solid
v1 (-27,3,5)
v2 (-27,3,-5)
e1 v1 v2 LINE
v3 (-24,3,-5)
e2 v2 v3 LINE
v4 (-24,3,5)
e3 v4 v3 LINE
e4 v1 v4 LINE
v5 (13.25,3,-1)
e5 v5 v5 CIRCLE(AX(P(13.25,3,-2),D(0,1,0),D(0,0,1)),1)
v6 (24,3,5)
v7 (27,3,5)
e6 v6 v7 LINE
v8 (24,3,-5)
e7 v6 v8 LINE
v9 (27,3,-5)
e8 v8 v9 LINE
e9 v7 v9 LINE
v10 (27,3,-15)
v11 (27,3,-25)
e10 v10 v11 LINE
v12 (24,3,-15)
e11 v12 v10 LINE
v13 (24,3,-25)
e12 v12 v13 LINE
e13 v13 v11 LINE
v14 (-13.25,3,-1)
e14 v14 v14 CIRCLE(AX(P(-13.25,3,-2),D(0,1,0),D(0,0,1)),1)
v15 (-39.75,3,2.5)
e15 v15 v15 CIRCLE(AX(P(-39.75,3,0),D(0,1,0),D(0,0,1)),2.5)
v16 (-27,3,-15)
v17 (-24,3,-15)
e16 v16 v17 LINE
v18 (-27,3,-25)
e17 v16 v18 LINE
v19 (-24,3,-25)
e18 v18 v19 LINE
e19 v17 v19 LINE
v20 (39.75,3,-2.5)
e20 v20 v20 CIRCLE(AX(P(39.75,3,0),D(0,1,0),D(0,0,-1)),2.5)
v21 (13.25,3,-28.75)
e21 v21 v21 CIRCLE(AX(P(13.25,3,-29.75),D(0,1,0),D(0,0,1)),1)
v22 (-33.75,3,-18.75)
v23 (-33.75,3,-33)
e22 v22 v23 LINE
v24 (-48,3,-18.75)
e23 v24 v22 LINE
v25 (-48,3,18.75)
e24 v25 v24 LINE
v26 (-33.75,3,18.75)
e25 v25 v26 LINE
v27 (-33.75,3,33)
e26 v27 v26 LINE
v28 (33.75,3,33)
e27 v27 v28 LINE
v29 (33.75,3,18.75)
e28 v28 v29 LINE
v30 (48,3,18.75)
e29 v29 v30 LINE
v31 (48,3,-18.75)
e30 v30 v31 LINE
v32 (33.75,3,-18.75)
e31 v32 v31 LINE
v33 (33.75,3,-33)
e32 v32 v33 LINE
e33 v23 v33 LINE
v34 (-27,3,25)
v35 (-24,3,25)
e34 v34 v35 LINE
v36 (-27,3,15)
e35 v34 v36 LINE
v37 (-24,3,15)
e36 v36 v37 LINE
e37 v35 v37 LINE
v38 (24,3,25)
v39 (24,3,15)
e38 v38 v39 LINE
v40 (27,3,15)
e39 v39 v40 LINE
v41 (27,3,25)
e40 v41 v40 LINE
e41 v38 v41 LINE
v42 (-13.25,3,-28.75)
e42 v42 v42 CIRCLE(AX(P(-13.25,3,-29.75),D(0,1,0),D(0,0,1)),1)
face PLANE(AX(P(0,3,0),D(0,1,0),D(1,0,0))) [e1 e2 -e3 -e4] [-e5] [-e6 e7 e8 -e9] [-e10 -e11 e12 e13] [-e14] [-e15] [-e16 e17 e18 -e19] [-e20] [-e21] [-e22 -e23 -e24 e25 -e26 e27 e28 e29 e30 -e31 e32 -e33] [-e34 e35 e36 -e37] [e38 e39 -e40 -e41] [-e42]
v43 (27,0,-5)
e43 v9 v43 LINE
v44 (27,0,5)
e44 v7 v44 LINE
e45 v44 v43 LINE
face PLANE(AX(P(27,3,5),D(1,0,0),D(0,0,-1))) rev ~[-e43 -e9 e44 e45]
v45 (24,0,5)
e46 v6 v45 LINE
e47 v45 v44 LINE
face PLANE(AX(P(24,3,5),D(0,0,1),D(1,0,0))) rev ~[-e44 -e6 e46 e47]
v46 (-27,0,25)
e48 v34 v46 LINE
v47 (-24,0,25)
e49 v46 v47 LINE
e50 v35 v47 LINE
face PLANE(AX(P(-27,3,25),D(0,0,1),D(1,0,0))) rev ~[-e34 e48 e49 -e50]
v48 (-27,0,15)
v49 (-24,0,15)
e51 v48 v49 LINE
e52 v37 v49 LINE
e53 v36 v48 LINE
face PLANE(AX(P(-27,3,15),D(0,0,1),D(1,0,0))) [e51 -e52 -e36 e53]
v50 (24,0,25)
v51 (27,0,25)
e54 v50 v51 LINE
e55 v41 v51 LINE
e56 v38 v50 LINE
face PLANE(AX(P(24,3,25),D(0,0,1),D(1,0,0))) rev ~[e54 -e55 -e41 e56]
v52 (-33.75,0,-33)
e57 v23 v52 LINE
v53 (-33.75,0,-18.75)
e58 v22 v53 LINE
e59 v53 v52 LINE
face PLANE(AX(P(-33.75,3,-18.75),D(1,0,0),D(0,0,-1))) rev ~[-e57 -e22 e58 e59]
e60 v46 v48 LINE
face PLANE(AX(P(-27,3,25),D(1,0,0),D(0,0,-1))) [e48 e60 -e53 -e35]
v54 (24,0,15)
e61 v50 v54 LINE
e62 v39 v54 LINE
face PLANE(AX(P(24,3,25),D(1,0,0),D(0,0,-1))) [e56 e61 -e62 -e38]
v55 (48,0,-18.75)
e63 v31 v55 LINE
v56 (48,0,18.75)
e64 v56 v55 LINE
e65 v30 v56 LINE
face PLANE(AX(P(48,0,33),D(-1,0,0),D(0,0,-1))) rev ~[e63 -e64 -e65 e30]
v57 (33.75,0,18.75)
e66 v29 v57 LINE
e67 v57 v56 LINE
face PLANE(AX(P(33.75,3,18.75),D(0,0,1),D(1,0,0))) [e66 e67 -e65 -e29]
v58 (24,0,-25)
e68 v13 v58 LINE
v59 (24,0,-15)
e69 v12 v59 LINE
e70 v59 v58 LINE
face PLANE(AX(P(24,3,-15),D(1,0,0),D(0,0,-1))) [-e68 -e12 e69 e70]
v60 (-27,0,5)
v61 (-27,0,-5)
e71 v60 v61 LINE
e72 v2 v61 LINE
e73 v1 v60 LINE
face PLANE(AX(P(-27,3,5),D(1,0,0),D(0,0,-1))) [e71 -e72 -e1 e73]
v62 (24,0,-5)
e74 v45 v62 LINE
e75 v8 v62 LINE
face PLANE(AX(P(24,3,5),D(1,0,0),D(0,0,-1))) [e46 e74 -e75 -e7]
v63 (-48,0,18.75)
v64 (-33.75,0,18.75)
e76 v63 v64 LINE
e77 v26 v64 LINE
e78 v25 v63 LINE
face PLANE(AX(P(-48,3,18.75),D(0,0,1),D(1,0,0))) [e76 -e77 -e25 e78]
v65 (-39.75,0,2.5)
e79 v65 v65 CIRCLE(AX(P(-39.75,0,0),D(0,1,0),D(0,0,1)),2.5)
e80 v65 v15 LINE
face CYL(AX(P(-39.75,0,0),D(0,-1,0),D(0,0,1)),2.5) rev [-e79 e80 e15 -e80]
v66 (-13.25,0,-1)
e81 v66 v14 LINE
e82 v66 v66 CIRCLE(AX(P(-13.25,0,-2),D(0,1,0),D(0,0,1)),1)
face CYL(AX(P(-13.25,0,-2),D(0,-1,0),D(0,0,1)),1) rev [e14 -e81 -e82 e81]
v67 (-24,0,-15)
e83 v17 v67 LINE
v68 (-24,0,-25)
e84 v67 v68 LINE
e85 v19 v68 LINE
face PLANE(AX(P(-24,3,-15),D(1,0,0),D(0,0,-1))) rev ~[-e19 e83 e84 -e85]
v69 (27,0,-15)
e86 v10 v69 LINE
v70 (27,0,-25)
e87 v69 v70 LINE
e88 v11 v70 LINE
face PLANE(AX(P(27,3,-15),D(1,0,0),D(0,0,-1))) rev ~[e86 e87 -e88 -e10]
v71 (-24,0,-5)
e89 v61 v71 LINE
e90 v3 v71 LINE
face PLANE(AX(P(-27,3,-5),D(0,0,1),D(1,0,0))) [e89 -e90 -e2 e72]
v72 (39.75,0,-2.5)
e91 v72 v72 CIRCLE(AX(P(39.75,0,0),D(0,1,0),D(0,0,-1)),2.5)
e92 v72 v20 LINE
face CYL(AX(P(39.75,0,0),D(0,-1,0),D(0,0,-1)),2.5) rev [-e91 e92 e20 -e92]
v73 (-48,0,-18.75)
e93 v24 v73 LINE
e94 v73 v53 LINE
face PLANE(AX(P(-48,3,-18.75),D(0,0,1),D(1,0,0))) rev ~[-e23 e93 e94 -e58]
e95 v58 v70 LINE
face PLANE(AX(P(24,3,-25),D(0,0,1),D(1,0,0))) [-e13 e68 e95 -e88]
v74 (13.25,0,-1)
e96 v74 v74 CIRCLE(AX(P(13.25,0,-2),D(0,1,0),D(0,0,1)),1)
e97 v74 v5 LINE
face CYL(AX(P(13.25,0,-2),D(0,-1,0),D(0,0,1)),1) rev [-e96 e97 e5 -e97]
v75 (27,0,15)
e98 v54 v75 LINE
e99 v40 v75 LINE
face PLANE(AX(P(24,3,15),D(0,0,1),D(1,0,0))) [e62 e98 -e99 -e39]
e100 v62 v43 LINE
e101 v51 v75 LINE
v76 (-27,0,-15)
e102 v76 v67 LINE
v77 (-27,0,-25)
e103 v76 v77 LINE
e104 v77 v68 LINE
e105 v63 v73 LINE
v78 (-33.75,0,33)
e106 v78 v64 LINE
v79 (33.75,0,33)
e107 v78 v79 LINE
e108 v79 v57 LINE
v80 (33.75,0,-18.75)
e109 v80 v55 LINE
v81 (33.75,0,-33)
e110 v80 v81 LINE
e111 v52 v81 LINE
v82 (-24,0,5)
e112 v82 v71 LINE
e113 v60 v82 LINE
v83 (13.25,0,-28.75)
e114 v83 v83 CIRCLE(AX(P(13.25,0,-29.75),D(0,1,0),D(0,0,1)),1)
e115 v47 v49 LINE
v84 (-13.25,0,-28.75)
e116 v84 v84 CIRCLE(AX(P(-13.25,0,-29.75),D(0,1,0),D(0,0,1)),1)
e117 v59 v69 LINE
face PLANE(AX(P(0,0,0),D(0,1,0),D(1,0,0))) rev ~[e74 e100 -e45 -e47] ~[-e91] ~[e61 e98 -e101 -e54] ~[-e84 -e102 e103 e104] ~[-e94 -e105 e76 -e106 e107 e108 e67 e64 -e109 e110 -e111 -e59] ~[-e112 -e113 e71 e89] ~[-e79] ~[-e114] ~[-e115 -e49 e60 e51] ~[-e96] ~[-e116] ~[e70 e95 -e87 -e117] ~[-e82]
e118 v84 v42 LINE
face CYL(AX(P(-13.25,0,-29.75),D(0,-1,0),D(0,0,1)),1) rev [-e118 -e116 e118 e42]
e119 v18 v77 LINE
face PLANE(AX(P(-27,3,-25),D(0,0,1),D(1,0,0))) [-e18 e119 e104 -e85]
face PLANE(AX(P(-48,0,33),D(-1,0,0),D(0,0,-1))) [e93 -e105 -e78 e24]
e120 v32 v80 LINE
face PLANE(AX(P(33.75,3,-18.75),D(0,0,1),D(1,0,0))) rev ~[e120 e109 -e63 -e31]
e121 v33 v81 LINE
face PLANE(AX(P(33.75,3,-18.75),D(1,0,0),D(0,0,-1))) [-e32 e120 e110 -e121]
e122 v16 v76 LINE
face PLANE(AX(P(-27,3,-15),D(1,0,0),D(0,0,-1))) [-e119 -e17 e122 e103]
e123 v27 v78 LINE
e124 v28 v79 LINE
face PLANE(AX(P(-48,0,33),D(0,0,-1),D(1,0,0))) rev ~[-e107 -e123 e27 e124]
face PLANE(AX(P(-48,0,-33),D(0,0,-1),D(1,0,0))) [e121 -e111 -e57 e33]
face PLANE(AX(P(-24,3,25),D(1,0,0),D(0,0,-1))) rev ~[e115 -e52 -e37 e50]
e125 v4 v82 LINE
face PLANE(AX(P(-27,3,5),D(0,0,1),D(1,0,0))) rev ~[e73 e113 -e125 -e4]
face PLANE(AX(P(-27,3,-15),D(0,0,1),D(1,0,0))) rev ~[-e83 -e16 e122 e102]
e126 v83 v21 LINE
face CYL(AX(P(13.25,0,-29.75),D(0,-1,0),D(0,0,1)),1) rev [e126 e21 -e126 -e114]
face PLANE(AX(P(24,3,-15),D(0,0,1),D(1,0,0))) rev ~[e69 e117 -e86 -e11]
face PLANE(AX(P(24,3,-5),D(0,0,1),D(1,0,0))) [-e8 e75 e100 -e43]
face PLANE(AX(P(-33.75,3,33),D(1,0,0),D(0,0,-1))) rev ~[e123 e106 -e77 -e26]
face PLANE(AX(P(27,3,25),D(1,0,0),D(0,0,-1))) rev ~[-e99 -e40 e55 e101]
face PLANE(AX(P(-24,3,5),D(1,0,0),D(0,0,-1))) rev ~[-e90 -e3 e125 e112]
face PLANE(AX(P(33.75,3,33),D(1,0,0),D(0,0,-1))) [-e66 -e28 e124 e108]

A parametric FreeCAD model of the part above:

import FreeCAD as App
import Part
import Sketcher

V = App.Vector
Q = App.Units.Quantity


def add_polygon(sketch, points):
    """Adds a closed chain of lines whose ends are joined by coincident constraints."""
    first, n = sketch.GeometryCount, len(points)
    for a, b in zip(points, points[1:] + points[:1]):
        sketch.addGeometry(Part.LineSegment(App.Vector(*a, 0), App.Vector(*b, 0)), False)
    for i in range(n):
        sketch.addConstraint(Sketcher.Constraint("Coincident", first + i, 2, first + (i + 1) % n, 1))

doc = App.newDocument("Part")
body = doc.addObject("PartDesign::Body", "Body")

sketch1 = body.newObject("Sketcher::SketchObject", "Sketch")
sketch1.AttachmentSupport = (doc.getObject("XZ_Plane"), [""])
sketch1.MapMode = "FlatFace"
add_polygon(sketch1, [(-48, -33), (-48, 33), (48, 33), (48, -33)])
sketch1.addGeometry(Part.Circle(V(-39.8, 0, 0), V(0, 0, 1), 2.5), False)
sketch1.addGeometry(Part.Circle(V(-13.2, -2, 0), V(0, 0, 1), 1), False)
sketch1.addGeometry(Part.Circle(V(13.2, -2, 0), V(0, 0, 1), 1), False)
sketch1.addGeometry(Part.Circle(V(39.8, 0, 0), V(0, 0, 1), 2.5), False)
sketch1.addGeometry(Part.Circle(V(-13.2, -29.8, 0), V(0, 0, 1), 1), False)
sketch1.addGeometry(Part.Circle(V(13.2, -29.8, 0), V(0, 0, 1), 1), False)
sketch1.addConstraint(Sketcher.Constraint("Vertical", 0))
sketch1.addConstraint(Sketcher.Constraint("Horizontal", 1))
sketch1.addConstraint(Sketcher.Constraint("Vertical", 2))
sketch1.addConstraint(Sketcher.Constraint("Horizontal", 3))
sketch1.addConstraint(Sketcher.Constraint("Equal", 5, 6))
sketch1.addConstraint(Sketcher.Constraint("Equal", 4, 7))
sketch1.addConstraint(Sketcher.Constraint("Equal", 6, 8))
sketch1.addConstraint(Sketcher.Constraint("Equal", 8, 9))
sketch1.addConstraint(Sketcher.Constraint("Symmetric", 4, 3, 7, 3, -1, 1))
sketch1.addConstraint(Sketcher.Constraint("Symmetric", 0, 2, 2, 2, -1, 1))
sketch1.addConstraint(Sketcher.Constraint("Symmetric", 5, 3, 6, 3, -2))
sketch1.addConstraint(Sketcher.Constraint("Symmetric", 8, 3, 9, 3, -2))
sketch1.addConstraint(Sketcher.Constraint("PointOnObject", 4, 3, -1))
sketch1.addConstraint(Sketcher.Constraint("Vertical", 5, 3, 8, 3))
sketch1.addConstraint(Sketcher.Constraint("Diameter", 4, Q("5 mm")))
sketch1.addConstraint(Sketcher.Constraint("Diameter", 5, Q("2 mm")))
sketch1.addConstraint(Sketcher.Constraint("DistanceX", 1, 1, 1, 2, Q("96 mm")))
sketch1.addConstraint(Sketcher.Constraint("DistanceY", 0, 1, 0, 2, Q("66 mm")))
sketch1.addConstraint(Sketcher.Constraint("DistanceY", 5, 3, -1, 1, Q("2 mm")))
sketch1.addConstraint(Sketcher.Constraint("DistanceX", 4, 3, 6, 3, Q("53 mm")))
sketch1.addConstraint(Sketcher.Constraint("DistanceX", 4, 3, 5, 3, Q("26.5 mm")))
sketch1.addConstraint(Sketcher.Constraint("DistanceY", 8, 3, -1, 1, Q("29.75 mm")))
pad1 = body.newObject("PartDesign::Pad", "Pad")
pad1.Profile = sketch1
pad1.Length = 3
pad1.Reversed = True

sketch2 = body.newObject("Sketcher::SketchObject", "Sketch001")
sketch2.AttachmentSupport = (doc.getObject("XZ_Plane"), [""])
sketch2.MapMode = "FlatFace"
sketch2.AttachmentOffset = App.Placement(V(0, 0, -3), App.Rotation())
add_polygon(sketch2, [(33.8, -33), (33.8, -18.8), (48, -18.8), (48, -33)])
add_polygon(sketch2, [(-48, -33), (-48, -18.8), (-33.8, -18.8), (-33.8, -33)])
add_polygon(sketch2, [(33.8, 18.8), (33.8, 33), (48, 33), (48, 18.8)])
add_polygon(sketch2, [(-48, 18.8), (-48, 33), (-33.8, 33), (-33.8, 18.8)])
add_polygon(sketch2, [(-27, 15), (-27, 25), (-24, 25), (-24, 15)])
add_polygon(sketch2, [(-27, -5), (-27, 5), (-24, 5), (-24, -5)])
add_polygon(sketch2, [(-27, -25), (-27, -15), (-24, -15), (-24, -25)])
add_polygon(sketch2, [(24, -25), (24, -15), (27, -15), (27, -25)])
add_polygon(sketch2, [(24, 15), (24, 25), (27, 25), (27, 15)])
add_polygon(sketch2, [(24, -5), (24, 5), (27, 5), (27, -5)])
sketch2.addConstraint(Sketcher.Constraint("Vertical", 0))
sketch2.addConstraint(Sketcher.Constraint("Horizontal", 1))
sketch2.addConstraint(Sketcher.Constraint("Vertical", 2))
sketch2.addConstraint(Sketcher.Constraint("Horizontal", 3))
sketch2.addConstraint(Sketcher.Constraint("Vertical", 4))
sketch2.addConstraint(Sketcher.Constraint("Horizontal", 5))
sketch2.addConstraint(Sketcher.Constraint("Vertical", 6))
sketch2.addConstraint(Sketcher.Constraint("Horizontal", 7))
sketch2.addConstraint(Sketcher.Constraint("Vertical", 8))
sketch2.addConstraint(Sketcher.Constraint("Horizontal", 9))
sketch2.addConstraint(Sketcher.Constraint("Vertical", 10))
sketch2.addConstraint(Sketcher.Constraint("Horizontal", 11))
sketch2.addConstraint(Sketcher.Constraint("Vertical", 12))
sketch2.addConstraint(Sketcher.Constraint("Horizontal", 13))
sketch2.addConstraint(Sketcher.Constraint("Vertical", 14))
sketch2.addConstraint(Sketcher.Constraint("Horizontal", 15))
sketch2.addConstraint(Sketcher.Constraint("Vertical", 16))
sketch2.addConstraint(Sketcher.Constraint("Horizontal", 17))
sketch2.addConstraint(Sketcher.Constraint("Vertical", 18))
sketch2.addConstraint(Sketcher.Constraint("Horizontal", 19))
sketch2.addConstraint(Sketcher.Constraint("Vertical", 20))
sketch2.addConstraint(Sketcher.Constraint("Horizontal", 21))
sketch2.addConstraint(Sketcher.Constraint("Vertical", 22))
sketch2.addConstraint(Sketcher.Constraint("Horizontal", 23))
sketch2.addConstraint(Sketcher.Constraint("Vertical", 24))
sketch2.addConstraint(Sketcher.Constraint("Horizontal", 25))
sketch2.addConstraint(Sketcher.Constraint("Vertical", 26))
sketch2.addConstraint(Sketcher.Constraint("Horizontal", 27))
sketch2.addConstraint(Sketcher.Constraint("Vertical", 28))
sketch2.addConstraint(Sketcher.Constraint("Horizontal", 29))
sketch2.addConstraint(Sketcher.Constraint("Vertical", 30))
sketch2.addConstraint(Sketcher.Constraint("Horizontal", 31))
sketch2.addConstraint(Sketcher.Constraint("Vertical", 32))
sketch2.addConstraint(Sketcher.Constraint("Horizontal", 33))
sketch2.addConstraint(Sketcher.Constraint("Vertical", 34))
sketch2.addConstraint(Sketcher.Constraint("Horizontal", 35))
sketch2.addConstraint(Sketcher.Constraint("Vertical", 36))
sketch2.addConstraint(Sketcher.Constraint("Horizontal", 37))
sketch2.addConstraint(Sketcher.Constraint("Vertical", 38))
sketch2.addConstraint(Sketcher.Constraint("Horizontal", 39))
sketch2.addConstraint(Sketcher.Constraint("Symmetric", 6, 2, 8, 2, -1, 1))
sketch2.addConstraint(Sketcher.Constraint("Symmetric", 4, 2, 10, 2, -1, 1))
sketch2.addConstraint(Sketcher.Constraint("Symmetric", 2, 2, 12, 2, -1, 1))
sketch2.addConstraint(Sketcher.Constraint("Symmetric", 0, 2, 14, 2, -1, 1))
sketch2.addConstraint(Sketcher.Constraint("Symmetric", 18, 2, 28, 2, -1, 1))
sketch2.addConstraint(Sketcher.Constraint("Symmetric", 16, 2, 30, 2, -1, 1))
sketch2.addConstraint(Sketcher.Constraint("Symmetric", 26, 2, 32, 2, -1, 1))
sketch2.addConstraint(Sketcher.Constraint("Symmetric", 24, 2, 34, 2, -1, 1))
sketch2.addConstraint(Sketcher.Constraint("Symmetric", 22, 2, 36, 2, -1, 1))
sketch2.addConstraint(Sketcher.Constraint("Symmetric", 20, 2, 38, 2, -1, 1))
sketch2.addConstraint(Sketcher.Constraint("Symmetric", 1, 2, 4, 2, -2))
sketch2.addConstraint(Sketcher.Constraint("Symmetric", 3, 2, 6, 2, -2))
sketch2.addConstraint(Sketcher.Constraint("Symmetric", 25, 2, 28, 2, -2))
sketch2.addConstraint(Sketcher.Constraint("Symmetric", 27, 2, 30, 2, -2))
sketch2.addConstraint(Sketcher.Constraint("Horizontal", 21, 2, 36, 2))
sketch2.addConstraint(Sketcher.Constraint("Vertical", 19, 2, 20, 2))
sketch2.addConstraint(Sketcher.Constraint("Vertical", 18, 2, 21, 2))
sketch2.addConstraint(Sketcher.Constraint("Equal", 15, 0))
sketch2.addConstraint(Sketcher.Constraint("Equal", 18, 20))
sketch2.addConstraint(Sketcher.Constraint("DistanceX", 17, 1, 17, 2, Q("3 mm")))
sketch2.addConstraint(Sketcher.Constraint("DistanceY", 16, 1, 16, 2, Q("10 mm")))
sketch2.addConstraint(Sketcher.Constraint("DistanceX", -1, 1, 1, 2, Q("48 mm")))
sketch2.addConstraint(Sketcher.Constraint("DistanceY", 2, 2, -1, 1, Q("33 mm")))
sketch2.addConstraint(Sketcher.Constraint("DistanceX", 16, 2, -1, 1, Q("27 mm")))
sketch2.addConstraint(Sketcher.Constraint("DistanceY", -1, 1, 16, 2, Q("25 mm")))
sketch2.addConstraint(Sketcher.Constraint("DistanceX", 1, 1, 1, 2, Q("14.25 mm")))
pocket1 = body.newObject("PartDesign::Pocket", "Pocket")
pocket1.Profile = sketch2
pocket1.Length = 3
pocket1.Reversed = True

doc.recompute()
